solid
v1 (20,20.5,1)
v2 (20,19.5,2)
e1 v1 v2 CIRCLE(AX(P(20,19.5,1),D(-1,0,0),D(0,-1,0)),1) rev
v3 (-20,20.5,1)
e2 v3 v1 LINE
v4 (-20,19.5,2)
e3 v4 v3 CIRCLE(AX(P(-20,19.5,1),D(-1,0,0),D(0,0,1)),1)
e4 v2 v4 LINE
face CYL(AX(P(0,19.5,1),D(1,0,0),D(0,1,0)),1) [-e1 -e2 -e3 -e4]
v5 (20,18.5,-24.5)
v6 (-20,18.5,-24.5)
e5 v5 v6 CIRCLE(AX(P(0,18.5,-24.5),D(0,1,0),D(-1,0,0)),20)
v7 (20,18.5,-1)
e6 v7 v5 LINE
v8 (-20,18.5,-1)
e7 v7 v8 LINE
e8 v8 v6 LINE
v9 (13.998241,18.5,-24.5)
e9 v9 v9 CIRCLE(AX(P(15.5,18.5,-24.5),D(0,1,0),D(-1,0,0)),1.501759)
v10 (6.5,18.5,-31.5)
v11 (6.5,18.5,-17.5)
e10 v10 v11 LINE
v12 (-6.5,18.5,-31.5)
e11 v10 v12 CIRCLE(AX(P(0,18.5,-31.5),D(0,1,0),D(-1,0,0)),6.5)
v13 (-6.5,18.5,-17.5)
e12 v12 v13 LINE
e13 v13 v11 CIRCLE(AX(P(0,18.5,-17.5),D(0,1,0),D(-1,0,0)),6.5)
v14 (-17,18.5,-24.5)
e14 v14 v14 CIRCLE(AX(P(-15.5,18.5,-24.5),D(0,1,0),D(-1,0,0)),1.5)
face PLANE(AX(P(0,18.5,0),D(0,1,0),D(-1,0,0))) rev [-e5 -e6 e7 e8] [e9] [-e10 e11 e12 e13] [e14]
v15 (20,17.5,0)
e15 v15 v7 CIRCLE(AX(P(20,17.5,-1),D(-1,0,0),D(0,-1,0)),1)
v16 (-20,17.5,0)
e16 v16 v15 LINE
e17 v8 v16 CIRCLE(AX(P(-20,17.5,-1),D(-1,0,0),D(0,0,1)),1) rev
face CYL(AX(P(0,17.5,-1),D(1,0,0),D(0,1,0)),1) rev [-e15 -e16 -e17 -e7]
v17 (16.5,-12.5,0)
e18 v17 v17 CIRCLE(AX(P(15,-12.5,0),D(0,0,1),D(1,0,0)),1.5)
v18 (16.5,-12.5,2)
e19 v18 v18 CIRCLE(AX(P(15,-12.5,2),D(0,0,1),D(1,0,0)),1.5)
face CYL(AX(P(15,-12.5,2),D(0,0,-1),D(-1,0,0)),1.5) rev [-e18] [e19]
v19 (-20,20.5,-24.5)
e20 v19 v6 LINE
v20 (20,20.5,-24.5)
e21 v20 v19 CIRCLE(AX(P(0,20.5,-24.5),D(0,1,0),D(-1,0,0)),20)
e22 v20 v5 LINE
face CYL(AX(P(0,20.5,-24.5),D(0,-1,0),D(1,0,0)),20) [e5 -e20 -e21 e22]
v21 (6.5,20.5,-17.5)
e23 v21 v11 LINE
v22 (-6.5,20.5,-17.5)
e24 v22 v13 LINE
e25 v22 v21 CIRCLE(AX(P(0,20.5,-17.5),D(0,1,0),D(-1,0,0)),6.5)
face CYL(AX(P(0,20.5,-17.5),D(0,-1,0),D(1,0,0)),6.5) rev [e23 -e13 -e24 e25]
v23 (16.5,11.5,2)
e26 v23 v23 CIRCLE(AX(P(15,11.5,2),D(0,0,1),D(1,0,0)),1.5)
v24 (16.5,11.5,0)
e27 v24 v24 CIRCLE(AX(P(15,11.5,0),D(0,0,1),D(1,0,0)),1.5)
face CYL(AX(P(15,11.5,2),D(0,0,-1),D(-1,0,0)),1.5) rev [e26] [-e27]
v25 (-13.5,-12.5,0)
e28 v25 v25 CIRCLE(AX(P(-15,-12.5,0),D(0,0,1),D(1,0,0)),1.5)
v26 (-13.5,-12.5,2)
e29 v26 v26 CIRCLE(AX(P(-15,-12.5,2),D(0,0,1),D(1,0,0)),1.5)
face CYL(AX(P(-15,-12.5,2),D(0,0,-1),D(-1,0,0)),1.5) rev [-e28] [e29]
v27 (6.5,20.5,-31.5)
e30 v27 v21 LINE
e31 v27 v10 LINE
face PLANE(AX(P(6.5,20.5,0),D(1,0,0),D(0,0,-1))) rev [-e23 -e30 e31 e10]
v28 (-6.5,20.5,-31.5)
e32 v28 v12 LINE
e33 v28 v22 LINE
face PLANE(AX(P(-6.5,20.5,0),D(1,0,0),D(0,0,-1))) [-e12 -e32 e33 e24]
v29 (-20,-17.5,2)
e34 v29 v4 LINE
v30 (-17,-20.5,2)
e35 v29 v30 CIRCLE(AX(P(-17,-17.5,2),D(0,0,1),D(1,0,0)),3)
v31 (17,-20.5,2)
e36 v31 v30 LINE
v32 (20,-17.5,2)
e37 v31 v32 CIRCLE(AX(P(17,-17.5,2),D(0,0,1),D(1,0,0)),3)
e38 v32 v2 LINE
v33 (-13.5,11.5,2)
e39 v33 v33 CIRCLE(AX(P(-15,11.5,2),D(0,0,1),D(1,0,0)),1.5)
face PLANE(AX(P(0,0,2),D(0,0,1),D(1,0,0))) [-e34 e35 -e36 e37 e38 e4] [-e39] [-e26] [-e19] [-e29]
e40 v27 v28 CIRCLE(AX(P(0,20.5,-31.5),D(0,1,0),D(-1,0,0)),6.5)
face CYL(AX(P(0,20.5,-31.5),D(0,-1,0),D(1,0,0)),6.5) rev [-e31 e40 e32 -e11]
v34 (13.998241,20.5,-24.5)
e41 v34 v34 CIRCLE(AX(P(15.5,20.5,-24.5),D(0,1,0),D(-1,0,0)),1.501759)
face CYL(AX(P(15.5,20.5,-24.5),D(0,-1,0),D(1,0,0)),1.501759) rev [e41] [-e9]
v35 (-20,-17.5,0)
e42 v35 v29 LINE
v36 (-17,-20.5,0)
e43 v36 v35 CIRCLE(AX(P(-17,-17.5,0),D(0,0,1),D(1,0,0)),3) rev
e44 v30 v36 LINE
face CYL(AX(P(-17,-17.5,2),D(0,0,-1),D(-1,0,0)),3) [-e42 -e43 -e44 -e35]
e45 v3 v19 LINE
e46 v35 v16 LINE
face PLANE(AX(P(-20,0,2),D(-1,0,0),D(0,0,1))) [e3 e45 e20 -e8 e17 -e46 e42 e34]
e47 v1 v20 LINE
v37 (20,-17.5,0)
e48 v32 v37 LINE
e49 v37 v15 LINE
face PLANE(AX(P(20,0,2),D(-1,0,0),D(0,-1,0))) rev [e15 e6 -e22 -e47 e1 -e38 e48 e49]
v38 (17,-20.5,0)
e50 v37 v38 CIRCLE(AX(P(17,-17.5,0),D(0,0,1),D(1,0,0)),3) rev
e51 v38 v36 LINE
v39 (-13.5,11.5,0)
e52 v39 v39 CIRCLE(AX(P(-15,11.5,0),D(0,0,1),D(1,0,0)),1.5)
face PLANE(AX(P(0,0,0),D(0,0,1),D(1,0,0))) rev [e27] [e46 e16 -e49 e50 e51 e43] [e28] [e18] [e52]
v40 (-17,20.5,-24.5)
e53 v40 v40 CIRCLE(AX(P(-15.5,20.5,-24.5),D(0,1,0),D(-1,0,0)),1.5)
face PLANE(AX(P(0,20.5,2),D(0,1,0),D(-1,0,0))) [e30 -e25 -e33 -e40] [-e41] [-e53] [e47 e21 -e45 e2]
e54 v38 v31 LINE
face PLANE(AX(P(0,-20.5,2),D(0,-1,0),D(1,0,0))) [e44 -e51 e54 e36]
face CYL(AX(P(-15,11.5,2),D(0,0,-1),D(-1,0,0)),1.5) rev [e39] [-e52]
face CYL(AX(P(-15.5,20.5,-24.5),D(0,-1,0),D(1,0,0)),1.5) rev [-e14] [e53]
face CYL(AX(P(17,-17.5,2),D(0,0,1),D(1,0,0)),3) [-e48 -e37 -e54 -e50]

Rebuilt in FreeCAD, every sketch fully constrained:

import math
import FreeCAD as App
import Part
import Sketcher


def edges_at(feature, points):
    """Names of the edges that pass closest to the given points."""
    edges = feature.Shape.Edges
    near = lambda p: min(range(len(edges)), key=lambda i: edges[i].distToShape(Part.Vertex(*p))[0])
    return sorted({f"Edge{near(p) + 1}" for p in points})

doc = App.newDocument("Part")
body = doc.addObject("PartDesign::Body", "Body")

sketch1 = body.newObject("Sketcher::SketchObject", "Sketch")
sketch1.AttachmentSupport = (doc.getObject("XY_Plane"), [""])
sketch1.MapMode = "FlatFace"
sketch1.addGeometry([
    Part.LineSegment(App.Vector(-20, -20.5, 0), App.Vector(20, -20.5, 0)),
    Part.LineSegment(App.Vector(20, -20.5, 0), App.Vector(20, 20.5, 0)),
    Part.LineSegment(App.Vector(20, 20.5, 0), App.Vector(-20, 20.5, 0)),
    Part.LineSegment(App.Vector(-20, 20.5, 0), App.Vector(-20, -20.5, 0)),
    Part.Circle(App.Vector(-15, -12.5, 0), App.Vector(0, 0, 1), 1.5),
    Part.Circle(App.Vector(15, -12.5, 0), App.Vector(0, 0, 1), 1.5),
    Part.Circle(App.Vector(-15, 11.5, 0), App.Vector(0, 0, 1), 1.5),
    Part.Circle(App.Vector(15, 11.5, 0), App.Vector(0, 0, 1), 1.5),
], False)
sketch1.addConstraint([
    Sketcher.Constraint("Coincident", 0, 2, 1, 1),
    Sketcher.Constraint("Coincident", 1, 2, 2, 1),
    Sketcher.Constraint("Coincident", 2, 2, 3, 1),
    Sketcher.Constraint("Coincident", 3, 2, 0, 1),
    Sketcher.Constraint("Horizontal", 0),
    Sketcher.Constraint("Vertical", 1),
    Sketcher.Constraint("Horizontal", 2),
    Sketcher.Constraint("Vertical", 3),
    Sketcher.Constraint("Equal", 4, 5),
    Sketcher.Constraint("Equal", 5, 6),
    Sketcher.Constraint("Equal", 6, 7),
    Sketcher.Constraint("Symmetric", 0, 2, 2, 2, -1, 1),
    Sketcher.Constraint("Symmetric", 4, 3, 5, 3, -2),
    Sketcher.Constraint("Symmetric", 6, 3, 7, 3, -2),
    Sketcher.Constraint("Vertical", 4, 3, 6, 3),
    Sketcher.Constraint("Diameter", 4, 3.0),
    Sketcher.Constraint("DistanceX", 0, 1, 0, 2, 40.0),
    Sketcher.Constraint("DistanceY", 1, 1, 1, 2, 41.0),
    Sketcher.Constraint("DistanceX", 4, 3, -1, 1, 15.0),
    Sketcher.Constraint("DistanceY", 4, 3, 6, 3, 24.0),
    Sketcher.Constraint("DistanceY", 0, 2, 5, 3, 8.0),
])
pad1 = body.newObject("PartDesign::Pad", "Pad")
pad1.Profile = sketch1
pad1.Length = 2

sketch2 = body.newObject("Sketcher::SketchObject", "Sketch001")
sketch2.AttachmentSupport = (doc.getObject("XZ_Plane"), [""])
sketch2.MapMode = "FlatFace"
sketch2.AttachmentOffset = App.Placement(App.Vector(0, 0, -18.5), App.Rotation())
sketch2.addGeometry([
    Part.ArcOfCircle(Part.Circle(App.Vector(0, -24.5, 0), App.Vector(0, 0, 1), 20), math.radians(180), math.radians(360)),
    Part.LineSegment(App.Vector(-20, -24.5, 0), App.Vector(-20, 2, 0)),
    Part.LineSegment(App.Vector(-20, 2, 0), App.Vector(20, 2, 0)),
    Part.LineSegment(App.Vector(20, 2, 0), App.Vector(20, -24.5, 0)),
    Part.Circle(App.Vector(-15.5, -24.5, 0), App.Vector(0, 0, 1), 1.5),
    Part.ArcOfCircle(Part.Circle(App.Vector(0, -31.5, 0), App.Vector(0, 0, 1), 6.5), math.radians(180), math.radians(360)),
    Part.LineSegment(App.Vector(6.5, -31.5, 0), App.Vector(6.5, -17.5, 0)),
    Part.ArcOfCircle(Part.Circle(App.Vector(0, -17.5, 0), App.Vector(0, 0, 1), 6.5), math.radians(0), math.radians(180)),
    Part.LineSegment(App.Vector(-6.5, -17.5, 0), App.Vector(-6.5, -31.5, 0)),
    Part.Circle(App.Vector(15.5, -24.5, 0), App.Vector(0, 0, 1), 1.501759),
], False)
sketch2.addConstraint([
    Sketcher.Constraint("Tangent", 0, 1, 1, 1),
    Sketcher.Constraint("Coincident", 1, 2, 2, 1),
    Sketcher.Constraint("Coincident", 2, 2, 3, 1),
    Sketcher.Constraint("Tangent", 3, 2, 0, 2),
    Sketcher.Constraint("Tangent", 5, 2, 6, 1),
    Sketcher.Constraint("Tangent", 6, 2, 7, 1),
    Sketcher.Constraint("Tangent", 7, 2, 8, 1),
    Sketcher.Constraint("Tangent", 8, 2, 5, 1),
    Sketcher.Constraint("Vertical", 1),
    Sketcher.Constraint("Horizontal", 2),
    Sketcher.Constraint("Vertical", 3),
    Sketcher.Constraint("Vertical", 6),
    Sketcher.Constraint("Vertical", 8),
    Sketcher.Constraint("Symmetric", 4, 3, 9, 3, -2),
    Sketcher.Constraint("PointOnObject", 0, 3, -2),
    Sketcher.Constraint("PointOnObject", 5, 3, -2),
    Sketcher.Constraint("Horizontal", 0, 3, 4, 3),
    Sketcher.Constraint("Diameter", 4, 3.0),
    Sketcher.Constraint("Radius", 0, 20.0),
    Sketcher.Constraint("Radius", 5, 6.5),
    Sketcher.Constraint("DistanceY", 6, 1, 6, 2, 14.0),
    Sketcher.Constraint("DistanceY", 1, 1, 1, 2, 26.5),
    Sketcher.Constraint("DistanceY", -1, 1, 1, 2, 2.0),
    Sketcher.Constraint("DistanceY", 5, 3, 0, 3, 7.0),
    Sketcher.Constraint("DistanceX", 4, 3, 9, 3, 31.0),
    Sketcher.Constraint("Diameter", 9, 3.003518),
])
pad2 = body.newObject("PartDesign::Pad", "Pad001")
pad2.Profile = sketch2
pad2.Length = 2
pad2.Reversed = True
doc.recompute()

fillet = body.newObject("PartDesign::Fillet", "Fillet")
fillet.Base = (pad2, edges_at(pad2, [(0, 18.5, 0), (0, 20.5, 2)]))
fillet.Radius = 1
doc.recompute()

fillet2 = body.newObject("PartDesign::Fillet", "Fillet001")
fillet2.Base = (fillet, edges_at(fillet, [(20, -20.5, 1), (-20, -20.5, 1)]))
fillet2.Radius = 3

doc.recompute()
